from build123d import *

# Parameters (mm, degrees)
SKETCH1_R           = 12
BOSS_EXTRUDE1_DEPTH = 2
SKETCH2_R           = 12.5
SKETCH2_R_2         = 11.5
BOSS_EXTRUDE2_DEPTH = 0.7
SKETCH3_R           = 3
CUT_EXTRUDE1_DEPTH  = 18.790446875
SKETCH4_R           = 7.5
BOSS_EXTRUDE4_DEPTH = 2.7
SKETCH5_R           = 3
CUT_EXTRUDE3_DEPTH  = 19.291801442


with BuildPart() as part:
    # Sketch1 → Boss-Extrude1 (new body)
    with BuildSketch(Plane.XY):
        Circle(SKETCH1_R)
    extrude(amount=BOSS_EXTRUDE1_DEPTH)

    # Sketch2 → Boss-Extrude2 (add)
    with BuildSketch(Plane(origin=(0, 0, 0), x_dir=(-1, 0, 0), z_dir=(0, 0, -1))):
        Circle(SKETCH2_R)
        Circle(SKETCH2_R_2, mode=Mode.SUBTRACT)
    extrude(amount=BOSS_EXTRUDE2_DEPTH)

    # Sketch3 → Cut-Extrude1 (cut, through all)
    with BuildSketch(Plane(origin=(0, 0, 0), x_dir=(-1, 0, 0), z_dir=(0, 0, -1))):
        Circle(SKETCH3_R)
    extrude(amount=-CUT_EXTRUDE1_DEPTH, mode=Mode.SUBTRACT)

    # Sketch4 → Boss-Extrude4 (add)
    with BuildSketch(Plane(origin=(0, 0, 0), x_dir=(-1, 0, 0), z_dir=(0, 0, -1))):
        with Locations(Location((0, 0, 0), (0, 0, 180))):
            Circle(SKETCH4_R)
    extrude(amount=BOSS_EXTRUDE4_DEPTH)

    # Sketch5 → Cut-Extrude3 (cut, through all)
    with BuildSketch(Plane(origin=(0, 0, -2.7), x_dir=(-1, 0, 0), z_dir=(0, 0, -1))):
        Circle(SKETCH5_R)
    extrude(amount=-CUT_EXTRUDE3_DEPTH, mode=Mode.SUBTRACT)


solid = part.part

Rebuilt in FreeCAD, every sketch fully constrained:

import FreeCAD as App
import Part
import Sketcher

doc = App.newDocument("Part")
body = doc.addObject("PartDesign::Body", "Body")

# Sketch on XY plane
sketch1 = body.newObject("Sketcher::SketchObject", "Sketch")
sketch1.AttachmentSupport = (doc.getObject("XY_Plane"), [""])
sketch1.MapMode = "FlatFace"
sketch1.addGeometry(Part.Circle(App.Vector(0, 0, 0), App.Vector(0, 0, 1), 12), False)
sketch1.addConstraint(Sketcher.Constraint("Coincident", 0, 3, -1, 1))
sketch1.addConstraint(Sketcher.Constraint("Diameter", 0, 24.0))
pad1 = body.newObject("PartDesign::Pad", "Pad")
pad1.Profile = sketch1
pad1.Length = 2

# Sketch on XY plane
sketch2 = body.newObject("Sketcher::SketchObject", "Sketch001")
sketch2.AttachmentSupport = (doc.getObject("XY_Plane"), [""])
sketch2.MapMode = "FlatFace"
sketch2.addGeometry(Part.Circle(App.Vector(0, 0, 0), App.Vector(0, 0, 1), 12), False)
sketch2.addGeometry(Part.Circle(App.Vector(0, 0, 0), App.Vector(0, 0, 1), 12), False)
sketch2.addConstraint(Sketcher.Constraint("Coincident", 0, 3, -1, 1))
sketch2.addConstraint(Sketcher.Constraint("Coincident", 1, 3, -1, 1))
sketch2.addConstraint(Sketcher.Constraint("Diameter", 0, 25.0))
sketch2.addConstraint(Sketcher.Constraint("Diameter", 1, 23.0))
pad2 = body.newObject("PartDesign::Pad", "Pad001")
pad2.Profile = sketch2
pad2.Length = 0.7
pad2.Reversed = True

# Sketch on XY plane
sketch3 = body.newObject("Sketcher::SketchObject", "Sketch002")
sketch3.AttachmentSupport = (doc.getObject("XY_Plane"), [""])
sketch3.MapMode = "FlatFace"
sketch3.addGeometry(Part.Circle(App.Vector(0, 0, 0), App.Vector(0, 0, 1), 3), False)
sketch3.addConstraint(Sketcher.Constraint("Coincident", 0, 3, -1, 1))
sketch3.addConstraint(Sketcher.Constraint("Diameter", 0, 6.0))
pocket1 = body.newObject("PartDesign::Pocket", "Pocket")
pocket1.Profile = sketch3
pocket1.Type = "ThroughAll"
pocket1.Reversed = True

# Sketch on XY plane
sketch4 = body.newObject("Sketcher::SketchObject", "Sketch003")
sketch4.AttachmentSupport = (doc.getObject("XY_Plane"), [""])
sketch4.MapMode = "FlatFace"
sketch4.addGeometry(Part.Circle(App.Vector(0, 0, 0), App.Vector(0, 0, 1), 8), False)
sketch4.addConstraint(Sketcher.Constraint("Coincident", 0, 3, -1, 1))
sketch4.addConstraint(Sketcher.Constraint("Diameter", 0, 15.0))
pad3 = body.newObject("PartDesign::Pad", "Pad002")
pad3.Profile = sketch4
pad3.Length = 2.7
pad3.Reversed = True

# Sketch on XY plane
sketch5 = body.newObject("Sketcher::SketchObject", "Sketch004")
sketch5.AttachmentSupport = (doc.getObject("XY_Plane"), [""])
sketch5.MapMode = "FlatFace"
sketch5.AttachmentOffset = App.Placement(App.Vector(0, 0, -2.7), App.Rotation())
sketch5.addGeometry(Part.Circle(App.Vector(0, 0, 0), App.Vector(0, 0, 1), 3), False)
sketch5.addConstraint(Sketcher.Constraint("Coincident", 0, 3, -1, 1))
sketch5.addConstraint(Sketcher.Constraint("Diameter", 0, 6.0))
pocket2 = body.newObject("PartDesign::Pocket", "Pocket001")
pocket2.Profile = sketch5
pocket2.Type = "ThroughAll"
pocket2.Reversed = True

doc.recompute()
